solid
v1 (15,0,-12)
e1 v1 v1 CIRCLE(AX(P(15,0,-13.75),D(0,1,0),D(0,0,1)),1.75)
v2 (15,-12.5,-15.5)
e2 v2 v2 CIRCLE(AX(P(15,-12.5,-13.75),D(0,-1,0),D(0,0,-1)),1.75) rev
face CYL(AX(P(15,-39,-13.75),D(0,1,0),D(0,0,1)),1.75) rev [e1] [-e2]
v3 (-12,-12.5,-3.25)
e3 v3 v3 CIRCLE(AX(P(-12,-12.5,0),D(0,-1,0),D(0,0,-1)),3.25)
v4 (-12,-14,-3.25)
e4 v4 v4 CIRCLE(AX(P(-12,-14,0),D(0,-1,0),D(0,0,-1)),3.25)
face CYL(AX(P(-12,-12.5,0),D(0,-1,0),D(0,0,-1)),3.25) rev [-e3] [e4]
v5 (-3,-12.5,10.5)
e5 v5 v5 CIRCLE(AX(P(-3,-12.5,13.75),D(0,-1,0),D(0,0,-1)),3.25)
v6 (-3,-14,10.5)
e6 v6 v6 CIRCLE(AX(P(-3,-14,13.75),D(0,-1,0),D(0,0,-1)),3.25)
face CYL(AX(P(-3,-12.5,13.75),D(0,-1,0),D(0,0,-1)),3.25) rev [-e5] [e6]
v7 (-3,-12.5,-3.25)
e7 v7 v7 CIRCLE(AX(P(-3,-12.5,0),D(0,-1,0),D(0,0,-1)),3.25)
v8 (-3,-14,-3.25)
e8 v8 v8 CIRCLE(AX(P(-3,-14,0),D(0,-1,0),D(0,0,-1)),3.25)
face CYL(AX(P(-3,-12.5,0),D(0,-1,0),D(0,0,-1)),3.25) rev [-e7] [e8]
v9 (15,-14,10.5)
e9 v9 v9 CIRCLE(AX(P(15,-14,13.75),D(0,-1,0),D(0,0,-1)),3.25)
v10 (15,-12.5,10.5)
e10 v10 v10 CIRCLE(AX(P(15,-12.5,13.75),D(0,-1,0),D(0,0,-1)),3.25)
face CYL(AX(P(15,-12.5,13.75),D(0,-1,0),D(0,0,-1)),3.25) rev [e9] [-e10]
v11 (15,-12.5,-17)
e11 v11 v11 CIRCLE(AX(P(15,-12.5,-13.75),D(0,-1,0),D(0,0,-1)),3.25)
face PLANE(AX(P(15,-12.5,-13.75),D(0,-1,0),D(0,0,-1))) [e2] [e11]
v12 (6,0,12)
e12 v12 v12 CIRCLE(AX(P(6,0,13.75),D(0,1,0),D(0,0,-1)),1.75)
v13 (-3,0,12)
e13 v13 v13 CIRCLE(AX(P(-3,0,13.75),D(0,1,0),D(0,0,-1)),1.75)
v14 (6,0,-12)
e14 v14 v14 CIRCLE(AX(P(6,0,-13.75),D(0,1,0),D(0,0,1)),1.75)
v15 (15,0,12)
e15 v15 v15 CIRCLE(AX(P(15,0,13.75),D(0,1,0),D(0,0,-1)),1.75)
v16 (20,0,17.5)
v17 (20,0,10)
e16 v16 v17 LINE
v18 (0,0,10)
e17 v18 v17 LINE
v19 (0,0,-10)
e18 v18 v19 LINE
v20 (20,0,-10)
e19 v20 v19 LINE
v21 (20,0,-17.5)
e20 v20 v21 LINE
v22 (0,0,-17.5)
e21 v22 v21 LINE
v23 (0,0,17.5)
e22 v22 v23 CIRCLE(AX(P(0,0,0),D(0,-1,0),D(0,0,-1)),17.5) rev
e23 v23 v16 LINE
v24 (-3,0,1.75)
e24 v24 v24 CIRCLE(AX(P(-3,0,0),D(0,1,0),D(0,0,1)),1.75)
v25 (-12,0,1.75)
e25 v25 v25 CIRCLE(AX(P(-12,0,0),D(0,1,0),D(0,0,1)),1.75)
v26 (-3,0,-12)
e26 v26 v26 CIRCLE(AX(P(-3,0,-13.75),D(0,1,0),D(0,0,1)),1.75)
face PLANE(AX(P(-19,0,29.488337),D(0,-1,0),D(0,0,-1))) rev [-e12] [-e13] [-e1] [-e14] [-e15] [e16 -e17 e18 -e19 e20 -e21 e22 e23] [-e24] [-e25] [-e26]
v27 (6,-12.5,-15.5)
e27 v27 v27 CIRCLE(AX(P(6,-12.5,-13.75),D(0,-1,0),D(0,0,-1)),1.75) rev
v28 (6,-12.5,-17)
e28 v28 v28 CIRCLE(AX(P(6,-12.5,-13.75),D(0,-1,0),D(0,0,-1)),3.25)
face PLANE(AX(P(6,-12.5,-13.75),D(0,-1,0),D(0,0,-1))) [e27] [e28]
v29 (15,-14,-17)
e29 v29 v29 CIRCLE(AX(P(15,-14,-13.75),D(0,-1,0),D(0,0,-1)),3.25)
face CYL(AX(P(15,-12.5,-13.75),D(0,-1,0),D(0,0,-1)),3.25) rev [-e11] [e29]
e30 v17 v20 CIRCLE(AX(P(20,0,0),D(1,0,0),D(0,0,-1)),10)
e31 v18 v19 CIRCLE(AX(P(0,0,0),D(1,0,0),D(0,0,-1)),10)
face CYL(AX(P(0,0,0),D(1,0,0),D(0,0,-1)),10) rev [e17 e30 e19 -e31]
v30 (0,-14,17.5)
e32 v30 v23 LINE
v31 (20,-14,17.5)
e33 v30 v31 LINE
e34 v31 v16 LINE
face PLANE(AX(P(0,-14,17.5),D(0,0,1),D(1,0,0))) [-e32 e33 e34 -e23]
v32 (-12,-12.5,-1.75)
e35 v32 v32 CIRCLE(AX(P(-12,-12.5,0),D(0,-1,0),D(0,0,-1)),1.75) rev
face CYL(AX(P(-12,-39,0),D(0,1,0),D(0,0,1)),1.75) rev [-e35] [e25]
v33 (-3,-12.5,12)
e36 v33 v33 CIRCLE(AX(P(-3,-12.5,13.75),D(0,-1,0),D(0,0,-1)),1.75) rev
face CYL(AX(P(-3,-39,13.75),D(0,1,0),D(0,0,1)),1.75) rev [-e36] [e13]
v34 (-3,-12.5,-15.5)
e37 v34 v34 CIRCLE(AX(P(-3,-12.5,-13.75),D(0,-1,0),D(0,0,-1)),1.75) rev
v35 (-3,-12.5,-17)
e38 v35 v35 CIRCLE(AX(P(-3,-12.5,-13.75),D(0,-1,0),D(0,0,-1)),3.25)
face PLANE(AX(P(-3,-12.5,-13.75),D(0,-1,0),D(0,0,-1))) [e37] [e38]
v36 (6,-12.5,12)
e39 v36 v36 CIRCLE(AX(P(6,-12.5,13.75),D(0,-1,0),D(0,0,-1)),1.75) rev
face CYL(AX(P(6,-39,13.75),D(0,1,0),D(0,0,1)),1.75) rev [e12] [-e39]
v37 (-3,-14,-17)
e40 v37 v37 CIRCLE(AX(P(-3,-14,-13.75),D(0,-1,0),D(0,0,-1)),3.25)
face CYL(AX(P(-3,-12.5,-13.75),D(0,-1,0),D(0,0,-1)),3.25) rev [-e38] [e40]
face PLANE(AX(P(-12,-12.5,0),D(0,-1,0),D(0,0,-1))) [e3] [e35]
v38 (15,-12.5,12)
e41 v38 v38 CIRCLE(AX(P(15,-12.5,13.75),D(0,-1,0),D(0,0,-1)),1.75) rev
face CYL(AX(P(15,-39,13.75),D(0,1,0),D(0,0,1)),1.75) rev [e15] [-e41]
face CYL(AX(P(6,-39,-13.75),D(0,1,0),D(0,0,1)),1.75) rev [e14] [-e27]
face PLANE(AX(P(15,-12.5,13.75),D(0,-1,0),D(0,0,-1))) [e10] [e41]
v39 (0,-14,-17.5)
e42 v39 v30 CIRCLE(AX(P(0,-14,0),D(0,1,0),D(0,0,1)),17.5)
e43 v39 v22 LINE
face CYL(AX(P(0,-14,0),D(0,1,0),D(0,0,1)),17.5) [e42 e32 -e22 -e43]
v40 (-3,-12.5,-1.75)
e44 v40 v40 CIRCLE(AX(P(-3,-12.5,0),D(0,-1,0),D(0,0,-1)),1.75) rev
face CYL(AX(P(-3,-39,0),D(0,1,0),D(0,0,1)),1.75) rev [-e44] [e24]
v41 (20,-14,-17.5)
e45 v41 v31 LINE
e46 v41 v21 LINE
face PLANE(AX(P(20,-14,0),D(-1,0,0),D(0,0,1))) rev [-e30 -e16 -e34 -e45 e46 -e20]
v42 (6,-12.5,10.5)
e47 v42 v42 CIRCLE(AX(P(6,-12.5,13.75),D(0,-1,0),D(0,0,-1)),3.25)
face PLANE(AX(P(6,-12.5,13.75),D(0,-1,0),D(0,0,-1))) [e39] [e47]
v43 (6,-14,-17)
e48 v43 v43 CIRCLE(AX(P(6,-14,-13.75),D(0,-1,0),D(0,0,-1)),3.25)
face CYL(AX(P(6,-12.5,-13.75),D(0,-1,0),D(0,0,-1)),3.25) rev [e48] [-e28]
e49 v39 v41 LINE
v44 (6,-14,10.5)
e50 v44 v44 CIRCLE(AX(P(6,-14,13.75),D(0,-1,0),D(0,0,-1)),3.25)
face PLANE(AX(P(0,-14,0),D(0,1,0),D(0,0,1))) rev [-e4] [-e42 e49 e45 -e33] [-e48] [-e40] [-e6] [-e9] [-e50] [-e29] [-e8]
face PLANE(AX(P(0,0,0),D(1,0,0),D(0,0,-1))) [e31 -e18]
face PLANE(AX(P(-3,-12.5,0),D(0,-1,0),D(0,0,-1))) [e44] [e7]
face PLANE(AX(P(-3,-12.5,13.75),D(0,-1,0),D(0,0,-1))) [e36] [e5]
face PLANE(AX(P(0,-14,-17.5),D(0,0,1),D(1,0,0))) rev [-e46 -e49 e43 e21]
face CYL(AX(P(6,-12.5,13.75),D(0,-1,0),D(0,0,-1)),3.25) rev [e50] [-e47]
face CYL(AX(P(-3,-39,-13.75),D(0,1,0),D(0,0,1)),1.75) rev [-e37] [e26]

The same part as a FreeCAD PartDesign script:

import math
import FreeCAD as App
import Part
import Sketcher
from FreeCAD import Vector

doc = App.newDocument("Part")
body = doc.addObject("PartDesign::Body", "Body")

sketch1 = body.newObject("Sketcher::SketchObject", "Sketch")
sketch1.AttachmentSupport = (doc.getObject("XZ_Plane"), [""])
sketch1.MapMode = "FlatFace"
sketch1.addGeometry([
    Part.ArcOfCircle(Part.Circle(Vector(0, 0, 0), Vector(0, 0, 1), 18), math.radians(90), math.radians(270)),
    Part.LineSegment(Vector(0, 18, 0), Vector(20, 18, 0)),
    Part.LineSegment(Vector(20, 18, 0), Vector(20, -18, 0)),
    Part.LineSegment(Vector(20, -18, 0), Vector(0, -18, 0)),
], False)
sketch1.addConstraint([
    Sketcher.Constraint("Tangent", 0, 1, 1, 1),
    Sketcher.Constraint("Coincident", 1, 2, 2, 1),
    Sketcher.Constraint("Coincident", 2, 2, 3, 1),
    Sketcher.Constraint("Tangent", 3, 2, 0, 2),
    Sketcher.Constraint("Horizontal", 1),
    Sketcher.Constraint("Vertical", 2),
    Sketcher.Constraint("Horizontal", 3),
    Sketcher.Constraint("Coincident", 0, 3, -1, 1),
    Sketcher.Constraint("Radius", 0, 17.5),
    Sketcher.Constraint("DistanceX", 1, 1, 1, 2, 20.0),
])
pad1 = body.newObject("PartDesign::Pad", "Pad")
pad1.Profile = sketch1
pad1.Type = "TwoLengths"
pad1.Length = 14
pad1.Length2 = 14
pad1.Reversed = True

sketch2 = body.newObject("Sketcher::SketchObject", "Sketch001")
sketch2.AttachmentSupport = (doc.getObject("YZ_Plane"), [""])
sketch2.MapMode = "FlatFace"
sketch2.AttachmentOffset = App.Placement(Vector(0, 0, 20), App.Rotation())
sketch2.addGeometry(Part.Circle(Vector(0, 0, 0), Vector(0, 0, 1), 10), False)
sketch2.addConstraint([
    Sketcher.Constraint("Coincident", 0, 3, -1, 1),
    Sketcher.Constraint("Diameter", 0, 20.0),
])
pocket1 = body.newObject("PartDesign::Pocket", "Pocket")
pocket1.Profile = sketch2
pocket1.Length = 20

sketch3 = body.newObject("Sketcher::SketchObject", "Sketch002")
sketch3.AttachmentSupport = (doc.getObject("YZ_Plane"), [""])
sketch3.MapMode = "FlatFace"
sketch3.AttachmentOffset = App.Placement(Vector(0, 0, 20), App.Rotation())
sketch3.addGeometry([
    Part.LineSegment(Vector(0, 29, 0), Vector(0, -30, 0)),
    Part.LineSegment(Vector(0, -30, 0), Vector(60, -4, 0)),
    Part.LineSegment(Vector(60, -4, 0), Vector(0, 29, 0)),
], False)
sketch3.addConstraint([
    Sketcher.Constraint("Coincident", 0, 2, 1, 1),
    Sketcher.Constraint("Coincident", 1, 2, 2, 1),
    Sketcher.Constraint("Coincident", 2, 2, 0, 1),
    Sketcher.Constraint("Vertical", 0),
    Sketcher.Constraint("PointOnObject", 0, 2, -2),
    Sketcher.Constraint("DistanceY", 0, 2, 0, 1, 59.452293),
    Sketcher.Constraint("DistanceY", 1, 2, 2, 2, 33.426711),
    Sketcher.Constraint("Distance", 1, 65.560217),
    Sketcher.Constraint("DistanceY", 0, 2, -1, 1, 29.963956),
])
pocket2 = body.newObject("PartDesign::Pocket", "Pocket001")
pocket2.Profile = sketch3
pocket2.Length = 39

sketch4 = body.newObject("Sketcher::SketchObject", "Sketch003")
sketch4.AttachmentSupport = (doc.getObject("XZ_Plane"), [""])
sketch4.MapMode = "FlatFace"
sketch4.addGeometry([
    Part.Circle(Vector(15, -13.8, 0), Vector(0, 0, 1), 1.8),
    Part.Circle(Vector(6, -13.8, 0), Vector(0, 0, 1), 1.8),
    Part.Circle(Vector(-3, -13.8, 0), Vector(0, 0, 1), 1.8),
    Part.Circle(Vector(-3, 0, 0), Vector(0, 0, 1), 1.8),
    Part.Circle(Vector(-12, 0, 0), Vector(0, 0, 1), 1.8),
    Part.Circle(Vector(15, 13.8, 0), Vector(0, 0, 1), 1.8),
    Part.Circle(Vector(6, 13.8, 0), Vector(0, 0, 1), 1.8),
    Part.Circle(Vector(-3, 13.8, 0), Vector(0, 0, 1), 1.8),
], False)
sketch4.addConstraint([
    Sketcher.Constraint("Equal", 0, 1),
    Sketcher.Constraint("Equal", 1, 2),
    Sketcher.Constraint("Equal", 2, 3),
    Sketcher.Constraint("Equal", 3, 4),
    Sketcher.Constraint("Equal", 4, 5),
    Sketcher.Constraint("Equal", 5, 6),
    Sketcher.Constraint("Equal", 6, 7),
    Sketcher.Constraint("Symmetric", 0, 3, 5, 3, -1),
    Sketcher.Constraint("Symmetric", 1, 3, 6, 3, -1),
    Sketcher.Constraint("Symmetric", 2, 3, 7, 3, -1),
    Sketcher.Constraint("PointOnObject", 3, 3, -1),
    Sketcher.Constraint("PointOnObject", 4, 3, -1),
    Sketcher.Constraint("Horizontal", 0, 3, 1, 3),
    Sketcher.Constraint("Horizontal", 1, 3, 2, 3),
    Sketcher.Constraint("Vertical", 2, 3, 3, 3),
    Sketcher.Constraint("Diameter", 0, 3.5),
    Sketcher.Constraint("DistanceX", -1, 1, 0, 3, 15.0),
    Sketcher.Constraint("DistanceX", -1, 1, 1, 3, 6.0),
    Sketcher.Constraint("DistanceX", 2, 3, -1, 1, 3.0),
    Sketcher.Constraint("DistanceX", 4, 3, -1, 1, 12.0),
    Sketcher.Constraint("DistanceY", 0, 3, 5, 3, 27.5),
])
pocket3 = body.newObject("PartDesign::Pocket", "Pocket002")
pocket3.Profile = sketch4
pocket3.Length = 39
pocket3.Reversed = True

sketch5 = body.newObject("Sketcher::SketchObject", "Sketch004")
sketch5.AttachmentSupport = (doc.getObject("XZ_Plane"), [""])
sketch5.MapMode = "FlatFace"
sketch5.AttachmentOffset = App.Placement(Vector(0, 0, 14), App.Rotation())
sketch5.addGeometry([
    Part.Circle(Vector(-3, 13.8, 0), Vector(0, 0, 1), 3.2),
    Part.Circle(Vector(6, 13.8, 0), Vector(0, 0, 1), 3.2),
    Part.Circle(Vector(15, 13.8, 0), Vector(0, 0, 1), 3.2),
    Part.Circle(Vector(-12, 0, 0), Vector(0, 0, 1), 3.2),
    Part.Circle(Vector(-3, 0, 0), Vector(0, 0, 1), 3.2),
    Part.Circle(Vector(-3, -13.8, 0), Vector(0, 0, 1), 3.2),
    Part.Circle(Vector(6, -13.8, 0), Vector(0, 0, 1), 3.2),
    Part.Circle(Vector(15, -13.8, 0), Vector(0, 0, 1), 3.2),
], False)
sketch5.addConstraint([
    Sketcher.Constraint("Equal", 0, 1),
    Sketcher.Constraint("Equal", 1, 2),
    Sketcher.Constraint("Equal", 2, 3),
    Sketcher.Constraint("Equal", 3, 4),
    Sketcher.Constraint("Equal", 4, 5),
    Sketcher.Constraint("Equal", 5, 6),
    Sketcher.Constraint("Equal", 6, 7),
    Sketcher.Constraint("Symmetric", 0, 3, 5, 3, -1),
    Sketcher.Constraint("Symmetric", 1, 3, 6, 3, -1),
    Sketcher.Constraint("Symmetric", 2, 3, 7, 3, -1),
    Sketcher.Constraint("PointOnObject", 3, 3, -1),
    Sketcher.Constraint("PointOnObject", 4, 3, -1),
    Sketcher.Constraint("Horizontal", 0, 3, 1, 3),
    Sketcher.Constraint("Horizontal", 1, 3, 2, 3),
    Sketcher.Constraint("Vertical", 0, 3, 4, 3),
    Sketcher.Constraint("Diameter", 0, 6.5),
    Sketcher.Constraint("DistanceX", 0, 3, -1, 1, 3.0),
    Sketcher.Constraint("DistanceX", -1, 1, 1, 3, 6.0),
    Sketcher.Constraint("DistanceX", -1, 1, 2, 3, 15.0),
    Sketcher.Constraint("DistanceX", 3, 3, -1, 1, 12.0),
    Sketcher.Constraint("DistanceY", 5, 3, 0, 3, 27.5),
])
pocket4 = body.newObject("PartDesign::Pocket", "Pocket003")
pocket4.Profile = sketch5
pocket4.Length = 1.5

doc.recompute()
